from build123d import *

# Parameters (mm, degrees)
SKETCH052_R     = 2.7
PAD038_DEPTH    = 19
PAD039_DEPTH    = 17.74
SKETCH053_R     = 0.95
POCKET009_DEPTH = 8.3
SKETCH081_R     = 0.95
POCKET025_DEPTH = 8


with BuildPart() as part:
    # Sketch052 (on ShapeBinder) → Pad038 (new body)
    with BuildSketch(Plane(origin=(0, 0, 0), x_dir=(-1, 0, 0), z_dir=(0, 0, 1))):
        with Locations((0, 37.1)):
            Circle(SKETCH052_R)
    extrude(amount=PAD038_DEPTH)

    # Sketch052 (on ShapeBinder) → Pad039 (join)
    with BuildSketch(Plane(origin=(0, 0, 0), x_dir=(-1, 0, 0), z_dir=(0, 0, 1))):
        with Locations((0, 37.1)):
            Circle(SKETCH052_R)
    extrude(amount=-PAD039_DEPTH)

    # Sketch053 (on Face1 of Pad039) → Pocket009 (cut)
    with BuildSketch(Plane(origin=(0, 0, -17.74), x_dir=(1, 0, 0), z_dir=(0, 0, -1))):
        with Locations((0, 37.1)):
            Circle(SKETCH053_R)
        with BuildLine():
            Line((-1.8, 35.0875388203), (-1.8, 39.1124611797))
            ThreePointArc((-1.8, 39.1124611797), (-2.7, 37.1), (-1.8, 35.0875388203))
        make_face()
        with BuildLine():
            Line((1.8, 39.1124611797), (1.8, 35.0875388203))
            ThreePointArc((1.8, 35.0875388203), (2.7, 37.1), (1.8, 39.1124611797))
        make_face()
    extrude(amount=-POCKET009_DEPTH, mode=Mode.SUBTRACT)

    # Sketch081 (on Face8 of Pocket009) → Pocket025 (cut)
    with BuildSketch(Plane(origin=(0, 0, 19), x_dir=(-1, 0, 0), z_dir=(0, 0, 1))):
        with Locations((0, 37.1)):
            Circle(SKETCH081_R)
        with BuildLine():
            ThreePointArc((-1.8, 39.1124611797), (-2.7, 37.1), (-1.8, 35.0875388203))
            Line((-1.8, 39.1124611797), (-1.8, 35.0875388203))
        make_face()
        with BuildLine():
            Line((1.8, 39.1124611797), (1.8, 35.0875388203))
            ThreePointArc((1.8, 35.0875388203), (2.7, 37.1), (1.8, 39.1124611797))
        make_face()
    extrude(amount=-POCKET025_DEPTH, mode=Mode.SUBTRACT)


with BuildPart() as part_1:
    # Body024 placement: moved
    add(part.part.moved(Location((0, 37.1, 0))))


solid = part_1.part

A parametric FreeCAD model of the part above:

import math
import FreeCAD as App
import Part
import Sketcher
from FreeCAD import Vector
Q = App.Units.Quantity

doc = App.newDocument("Part")
body = doc.addObject("PartDesign::Body", "Body")

# Sketch on XY plane
sketch1 = doc.addObject("Sketcher::SketchObject", "Sketch")
body.addObject(sketch1)
sketch1.AttachmentSupport = (doc.XY_Plane, [""])
sketch1.MapMode = "FlatFace"
sketch1.addGeometry(Part.Circle(Vector(0, -37.1, 0), Vector(0, 0, 1), 2.7), False)
sketch1.addConstraint([
    Sketcher.Constraint("PointOnObject", 0, 3, -2),
    Sketcher.Constraint("Diameter", 0, Q("5.4 mm")),
    Sketcher.Constraint("DistanceY", 0, 3, -1, 1, Q("37.1 mm")),
])
pad1 = doc.addObject("PartDesign::Pad", "Pad")
body.addObject(pad1)
pad1.Profile = sketch1
pad1.Length = 19

# Sketch on XY plane
sketch2 = doc.addObject("Sketcher::SketchObject", "Sketch001")
body.addObject(sketch2)
sketch2.AttachmentSupport = (doc.XY_Plane, [""])
sketch2.MapMode = "FlatFace"
sketch2.addGeometry(Part.Circle(Vector(0, -37.1, 0), Vector(0, 0, 1), 2.7), False)
sketch2.addConstraint([
    Sketcher.Constraint("PointOnObject", 0, 3, -2),
    Sketcher.Constraint("Diameter", 0, Q("5.4 mm")),
    Sketcher.Constraint("DistanceY", 0, 3, -1, 1, Q("37.1 mm")),
])
pad2 = doc.addObject("PartDesign::Pad", "Pad001")
body.addObject(pad2)
pad2.Profile = sketch2
pad2.Length = 17.74
pad2.Reversed = True

# Sketch on XY plane
sketch3 = doc.addObject("Sketcher::SketchObject", "Sketch002")
body.addObject(sketch3)
sketch3.AttachmentSupport = (doc.XY_Plane, [""])
sketch3.MapMode = "FlatFace"
sketch3.AttachmentOffset = App.Placement(Vector(0, 0, -17.74), App.Rotation())
sketch3.addGeometry([
    Part.Circle(Vector(0, -37.1, 0), Vector(0, 0, 1), 0.9),  # 0
    Part.LineSegment(Vector(-1.8, -35.1, 0), Vector(-1.8, -39.1, 0)),  # 1
    Part.ArcOfCircle(Part.Circle(Vector(0, -37.1, 0), Vector(0, 0, 1), 2.7), math.radians(132), math.radians(228)),  # 2
    Part.LineSegment(Vector(1.8, -39.1, 0), Vector(1.8, -35.1, 0)),  # 3
    Part.ArcOfCircle(Part.Circle(Vector(0, -37.1, 0), Vector(0, 0, 1), 2.7), math.radians(-48), math.radians(48)),  # 4
], False)
sketch3.addConstraint([
    Sketcher.Constraint("Coincident", 1, 1, 2, 1),
    Sketcher.Constraint("Coincident", 2, 2, 1, 2),
    Sketcher.Constraint("Coincident", 3, 1, 4, 1),
    Sketcher.Constraint("Coincident", 4, 2, 3, 2),
    Sketcher.Constraint("Vertical", 1),
    Sketcher.Constraint("Vertical", 3),
    Sketcher.Constraint("Coincident", 2, 3, 0, 3),
    Sketcher.Constraint("Coincident", 4, 3, 0, 3),
    Sketcher.Constraint("Equal", 2, 4),
    Sketcher.Constraint("Symmetric", 2, 2, 3, 1, -2),
    Sketcher.Constraint("Diameter", 0, Q("1.9 mm")),
    Sketcher.Constraint("Radius", 2, Q("2.7 mm")),
    Sketcher.Constraint("DistanceY", 0, 3, -1, 1, Q("37.1 mm")),
    Sketcher.Constraint("DistanceX", 1, 1, -1, 1, Q("1.8 mm")),
])
pocket1 = doc.addObject("PartDesign::Pocket", "Pocket")
body.addObject(pocket1)
pocket1.Profile = sketch3
pocket1.Length = 8.3
pocket1.Reversed = True

# Sketch on XY plane
sketch4 = doc.addObject("Sketcher::SketchObject", "Sketch003")
body.addObject(sketch4)
sketch4.AttachmentSupport = (doc.XY_Plane, [""])
sketch4.MapMode = "FlatFace"
sketch4.AttachmentOffset = App.Placement(Vector(0, 0, 19), App.Rotation())
sketch4.addGeometry([
    Part.Circle(Vector(0, -37.1, 0), Vector(0, 0, 1), 0.9),  # 0
    Part.ArcOfCircle(Part.Circle(Vector(0, -37.1, 0), Vector(0, 0, 1), 2.7), math.radians(-48), math.radians(48)),  # 1
    Part.LineSegment(Vector(1.8, -35.1, 0), Vector(1.8, -39.1, 0)),  # 2
    Part.LineSegment(Vector(-1.8, -39.1, 0), Vector(-1.8, -35.1, 0)),  # 3
    Part.ArcOfCircle(Part.Circle(Vector(0, -37.1, 0), Vector(0, 0, 1), 2.7), math.radians(132), math.radians(228)),  # 4
], False)
sketch4.addConstraint([
    Sketcher.Constraint("Coincident", 1, 1, 2, 2),
    Sketcher.Constraint("Coincident", 2, 1, 1, 2),
    Sketcher.Constraint("Coincident", 3, 1, 4, 2),
    Sketcher.Constraint("Coincident", 4, 1, 3, 2),
    Sketcher.Constraint("Vertical", 2),
    Sketcher.Constraint("Vertical", 3),
    Sketcher.Constraint("Coincident", 1, 3, 0, 3),
    Sketcher.Constraint("Coincident", 4, 3, 0, 3),
    Sketcher.Constraint("Equal", 1, 4),
    Sketcher.Constraint("Symmetric", 1, 1, 3, 1, -2),
    Sketcher.Constraint("Diameter", 0, Q("1.9 mm")),
    Sketcher.Constraint("Radius", 1, Q("2.7 mm")),
    Sketcher.Constraint("DistanceY", 0, 3, -1, 1, Q("37.1 mm")),
    Sketcher.Constraint("DistanceX", -1, 1, 1, 1, Q("1.8 mm")),
])
pocket2 = doc.addObject("PartDesign::Pocket", "Pocket001")
body.addObject(pocket2)
pocket2.Profile = sketch4
pocket2.Length = 8
body2 = doc.addObject("PartDesign::Body", "Body001")
doc.recompute()

body.Placement = App.Placement(Vector(0, 37.1, 0), App.Rotation(Vector(0, 0, 1), 0))
boolean = doc.addObject("PartDesign::Boolean", "Boolean")
body2.addObject(boolean)
boolean.Type = "Fuse"
boolean.addObjects([body])

doc.recompute()
